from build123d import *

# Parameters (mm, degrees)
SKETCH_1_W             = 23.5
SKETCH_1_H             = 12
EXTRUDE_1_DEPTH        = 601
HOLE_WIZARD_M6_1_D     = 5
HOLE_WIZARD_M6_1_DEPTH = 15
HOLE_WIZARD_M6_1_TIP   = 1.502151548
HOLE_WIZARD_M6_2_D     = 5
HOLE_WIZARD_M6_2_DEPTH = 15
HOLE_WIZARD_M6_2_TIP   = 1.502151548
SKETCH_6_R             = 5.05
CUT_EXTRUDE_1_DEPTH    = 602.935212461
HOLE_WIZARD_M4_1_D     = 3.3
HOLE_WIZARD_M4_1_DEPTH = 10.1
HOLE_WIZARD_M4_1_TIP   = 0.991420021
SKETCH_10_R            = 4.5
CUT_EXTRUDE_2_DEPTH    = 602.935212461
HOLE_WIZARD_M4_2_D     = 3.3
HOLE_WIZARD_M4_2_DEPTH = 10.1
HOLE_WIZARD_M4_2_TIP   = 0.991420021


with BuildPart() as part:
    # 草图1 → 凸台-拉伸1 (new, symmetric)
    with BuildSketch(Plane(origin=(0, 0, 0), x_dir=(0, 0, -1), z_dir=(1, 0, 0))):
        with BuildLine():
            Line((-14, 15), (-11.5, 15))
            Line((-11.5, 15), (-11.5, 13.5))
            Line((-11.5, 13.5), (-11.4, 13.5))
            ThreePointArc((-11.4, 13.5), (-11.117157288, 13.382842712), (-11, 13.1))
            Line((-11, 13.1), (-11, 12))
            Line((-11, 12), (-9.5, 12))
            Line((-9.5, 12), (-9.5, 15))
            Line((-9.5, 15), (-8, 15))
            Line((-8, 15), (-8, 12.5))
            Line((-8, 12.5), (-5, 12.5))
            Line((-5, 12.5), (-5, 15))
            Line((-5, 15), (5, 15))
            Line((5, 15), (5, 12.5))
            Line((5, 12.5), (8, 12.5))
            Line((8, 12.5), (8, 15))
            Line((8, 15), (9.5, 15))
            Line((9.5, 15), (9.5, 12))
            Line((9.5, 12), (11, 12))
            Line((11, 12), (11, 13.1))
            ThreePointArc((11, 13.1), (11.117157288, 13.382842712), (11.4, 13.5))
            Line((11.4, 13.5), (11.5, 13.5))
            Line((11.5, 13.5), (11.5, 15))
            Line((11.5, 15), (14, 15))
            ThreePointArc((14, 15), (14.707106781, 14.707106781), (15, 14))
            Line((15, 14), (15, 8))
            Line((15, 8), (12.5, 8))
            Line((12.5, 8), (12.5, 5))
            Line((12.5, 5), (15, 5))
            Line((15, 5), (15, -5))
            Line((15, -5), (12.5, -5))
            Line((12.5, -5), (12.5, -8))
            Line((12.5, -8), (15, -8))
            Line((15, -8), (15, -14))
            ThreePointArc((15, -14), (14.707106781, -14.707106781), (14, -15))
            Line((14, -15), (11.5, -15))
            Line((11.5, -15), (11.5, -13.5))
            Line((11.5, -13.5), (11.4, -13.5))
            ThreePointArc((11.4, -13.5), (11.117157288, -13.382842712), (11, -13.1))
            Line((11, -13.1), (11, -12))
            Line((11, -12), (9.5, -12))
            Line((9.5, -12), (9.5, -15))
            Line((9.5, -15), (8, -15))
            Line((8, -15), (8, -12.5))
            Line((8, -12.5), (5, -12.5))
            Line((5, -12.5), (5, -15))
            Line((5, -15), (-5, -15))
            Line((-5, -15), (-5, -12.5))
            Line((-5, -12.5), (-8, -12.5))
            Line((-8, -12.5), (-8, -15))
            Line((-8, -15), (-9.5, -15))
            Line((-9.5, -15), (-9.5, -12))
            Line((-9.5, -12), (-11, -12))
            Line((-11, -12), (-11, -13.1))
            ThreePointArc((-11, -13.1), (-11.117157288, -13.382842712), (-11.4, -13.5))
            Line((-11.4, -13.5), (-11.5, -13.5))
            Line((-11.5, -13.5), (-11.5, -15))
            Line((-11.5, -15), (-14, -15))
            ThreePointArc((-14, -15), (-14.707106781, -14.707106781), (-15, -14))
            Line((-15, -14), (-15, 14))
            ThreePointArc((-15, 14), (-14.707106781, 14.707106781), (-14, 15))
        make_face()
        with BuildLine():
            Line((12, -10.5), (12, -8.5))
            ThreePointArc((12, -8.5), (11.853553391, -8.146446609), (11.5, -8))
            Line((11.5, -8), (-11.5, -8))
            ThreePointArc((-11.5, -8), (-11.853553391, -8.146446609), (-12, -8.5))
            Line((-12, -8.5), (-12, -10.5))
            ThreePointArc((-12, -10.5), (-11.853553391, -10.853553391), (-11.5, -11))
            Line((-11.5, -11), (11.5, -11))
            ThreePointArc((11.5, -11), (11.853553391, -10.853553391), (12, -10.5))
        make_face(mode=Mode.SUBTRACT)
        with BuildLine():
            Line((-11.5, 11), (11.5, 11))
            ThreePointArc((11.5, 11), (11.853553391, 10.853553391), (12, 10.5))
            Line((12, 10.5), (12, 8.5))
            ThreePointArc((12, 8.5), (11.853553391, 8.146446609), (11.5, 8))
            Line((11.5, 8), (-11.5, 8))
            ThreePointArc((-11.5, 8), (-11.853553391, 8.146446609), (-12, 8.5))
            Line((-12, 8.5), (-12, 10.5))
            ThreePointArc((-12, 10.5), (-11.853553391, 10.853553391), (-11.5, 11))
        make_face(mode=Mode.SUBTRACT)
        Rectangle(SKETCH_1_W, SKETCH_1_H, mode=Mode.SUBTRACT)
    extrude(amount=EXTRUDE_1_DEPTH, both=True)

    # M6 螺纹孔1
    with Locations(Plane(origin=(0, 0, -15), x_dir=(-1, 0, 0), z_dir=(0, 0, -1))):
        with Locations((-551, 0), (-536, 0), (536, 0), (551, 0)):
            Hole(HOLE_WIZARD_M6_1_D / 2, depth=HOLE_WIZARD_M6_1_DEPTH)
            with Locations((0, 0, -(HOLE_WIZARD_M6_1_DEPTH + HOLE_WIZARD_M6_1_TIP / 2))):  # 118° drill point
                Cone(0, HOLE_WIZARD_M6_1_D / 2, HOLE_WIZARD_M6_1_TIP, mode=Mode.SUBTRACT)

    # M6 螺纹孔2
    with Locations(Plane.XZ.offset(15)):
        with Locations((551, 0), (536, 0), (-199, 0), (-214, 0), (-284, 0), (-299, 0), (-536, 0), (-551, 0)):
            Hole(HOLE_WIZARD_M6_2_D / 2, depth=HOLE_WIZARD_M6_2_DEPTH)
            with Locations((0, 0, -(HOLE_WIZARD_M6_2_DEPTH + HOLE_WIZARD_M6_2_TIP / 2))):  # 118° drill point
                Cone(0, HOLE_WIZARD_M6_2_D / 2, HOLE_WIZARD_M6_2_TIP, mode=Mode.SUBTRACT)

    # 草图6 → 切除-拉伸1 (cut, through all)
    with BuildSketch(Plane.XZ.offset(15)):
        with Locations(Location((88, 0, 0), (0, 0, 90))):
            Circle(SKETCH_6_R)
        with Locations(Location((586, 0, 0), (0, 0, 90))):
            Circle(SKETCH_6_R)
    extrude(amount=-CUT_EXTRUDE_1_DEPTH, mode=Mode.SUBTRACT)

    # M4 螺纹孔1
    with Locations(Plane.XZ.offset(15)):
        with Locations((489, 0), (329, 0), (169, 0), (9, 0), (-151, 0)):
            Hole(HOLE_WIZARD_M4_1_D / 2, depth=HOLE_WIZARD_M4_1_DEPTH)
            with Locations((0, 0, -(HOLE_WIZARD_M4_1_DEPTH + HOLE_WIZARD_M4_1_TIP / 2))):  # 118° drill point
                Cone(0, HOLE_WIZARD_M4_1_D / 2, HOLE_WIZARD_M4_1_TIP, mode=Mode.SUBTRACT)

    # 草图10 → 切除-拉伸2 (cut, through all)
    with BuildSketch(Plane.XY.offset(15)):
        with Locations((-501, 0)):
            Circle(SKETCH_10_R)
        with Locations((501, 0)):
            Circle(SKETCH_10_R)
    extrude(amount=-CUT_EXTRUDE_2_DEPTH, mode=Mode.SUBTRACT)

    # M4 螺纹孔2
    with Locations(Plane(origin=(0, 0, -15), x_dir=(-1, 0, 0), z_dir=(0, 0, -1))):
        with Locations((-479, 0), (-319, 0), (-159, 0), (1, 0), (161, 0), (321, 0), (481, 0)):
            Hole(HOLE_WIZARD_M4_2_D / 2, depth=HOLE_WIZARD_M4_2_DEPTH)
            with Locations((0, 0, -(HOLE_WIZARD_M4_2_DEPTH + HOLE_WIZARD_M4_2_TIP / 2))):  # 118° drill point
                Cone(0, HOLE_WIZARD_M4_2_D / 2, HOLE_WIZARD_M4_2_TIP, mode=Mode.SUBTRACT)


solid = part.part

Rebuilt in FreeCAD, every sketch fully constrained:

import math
import FreeCAD as App
import Part
import Sketcher

V = App.Vector

doc = App.newDocument("Part")
body = doc.addObject("PartDesign::Body", "Body")

sketch1 = body.newObject("Sketcher::SketchObject", "Sketch")
sketch1.AttachmentSupport = (doc.getObject("YZ_Plane"), [""])
sketch1.MapMode = "FlatFace"
sketch1.addGeometry(Part.LineSegment(V(15, 11.5, 0), V(15, 14, 0)), False)
sketch1.addGeometry(Part.ArcOfCircle(Part.Circle(V(14, 14, 0), V(0, 0, 1), 1), math.radians(0), math.radians(90)), False)
sketch1.addGeometry(Part.LineSegment(V(14, 15, 0), V(-14, 15, 0)), False)
sketch1.addGeometry(Part.ArcOfCircle(Part.Circle(V(-14, 14, 0), V(0, 0, 1), 1), math.radians(90), math.radians(180)), False)
sketch1.addGeometry(Part.LineSegment(V(-15, 14, 0), V(-15, 11.5, 0)), False)
sketch1.addGeometry(Part.LineSegment(V(-15, 11.5, 0), V(-13.5, 11.5, 0)), False)
sketch1.addGeometry(Part.LineSegment(V(-13.5, 11.5, 0), V(-13.5, 11.4, 0)), False)
sketch1.addGeometry(Part.ArcOfCircle(Part.Circle(V(-13.1, 11.4, 0), V(0, 0, 1), 0.4), math.radians(-180), math.radians(-90)), False)
sketch1.addGeometry(Part.LineSegment(V(-13.1, 11, 0), V(-12, 11, 0)), False)
sketch1.addGeometry(Part.LineSegment(V(-12, 11, 0), V(-12, 9.5, 0)), False)
sketch1.addGeometry(Part.LineSegment(V(-12, 9.5, 0), V(-15, 9.5, 0)), False)
sketch1.addGeometry(Part.LineSegment(V(-15, 9.5, 0), V(-15, 8, 0)), False)
sketch1.addGeometry(Part.LineSegment(V(-15, 8, 0), V(-12.5, 8, 0)), False)
sketch1.addGeometry(Part.LineSegment(V(-12.5, 8, 0), V(-12.5, 5, 0)), False)
sketch1.addGeometry(Part.LineSegment(V(-12.5, 5, 0), V(-15, 5, 0)), False)
sketch1.addGeometry(Part.LineSegment(V(-15, 5, 0), V(-15, -5, 0)), False)
sketch1.addGeometry(Part.LineSegment(V(-15, -5, 0), V(-12.5, -5, 0)), False)
sketch1.addGeometry(Part.LineSegment(V(-12.5, -5, 0), V(-12.5, -8, 0)), False)
sketch1.addGeometry(Part.LineSegment(V(-12.5, -8, 0), V(-15, -8, 0)), False)
sketch1.addGeometry(Part.LineSegment(V(-15, -8, 0), V(-15, -9.5, 0)), False)
sketch1.addGeometry(Part.LineSegment(V(-15, -9.5, 0), V(-12, -9.5, 0)), False)
sketch1.addGeometry(Part.LineSegment(V(-12, -9.5, 0), V(-12, -11, 0)), False)
sketch1.addGeometry(Part.LineSegment(V(-12, -11, 0), V(-13.1, -11, 0)), False)
sketch1.addGeometry(Part.ArcOfCircle(Part.Circle(V(-13.1, -11.4, 0), V(0, 0, 1), 0.4), math.radians(90), math.radians(180)), False)
sketch1.addGeometry(Part.LineSegment(V(-13.5, -11.4, 0), V(-13.5, -11.5, 0)), False)
sketch1.addGeometry(Part.LineSegment(V(-13.5, -11.5, 0), V(-15, -11.5, 0)), False)
sketch1.addGeometry(Part.LineSegment(V(-15, -11.5, 0), V(-15, -14, 0)), False)
sketch1.addGeometry(Part.ArcOfCircle(Part.Circle(V(-14, -14, 0), V(0, 0, 1), 1), math.radians(-180), math.radians(-90)), False)
sketch1.addGeometry(Part.LineSegment(V(-14, -15, 0), V(-8, -15, 0)), False)
sketch1.addGeometry(Part.LineSegment(V(-8, -15, 0), V(-8, -12.5, 0)), False)
sketch1.addGeometry(Part.LineSegment(V(-8, -12.5, 0), V(-5, -12.5, 0)), False)
sketch1.addGeometry(Part.LineSegment(V(-5, -12.5, 0), V(-5, -15, 0)), False)
sketch1.addGeometry(Part.LineSegment(V(-5, -15, 0), V(5, -15, 0)), False)
sketch1.addGeometry(Part.LineSegment(V(5, -15, 0), V(5, -12.5, 0)), False)
sketch1.addGeometry(Part.LineSegment(V(5, -12.5, 0), V(8, -12.5, 0)), False)
sketch1.addGeometry(Part.LineSegment(V(8, -12.5, 0), V(8, -15, 0)), False)
sketch1.addGeometry(Part.LineSegment(V(8, -15, 0), V(14, -15, 0)), False)
sketch1.addGeometry(Part.ArcOfCircle(Part.Circle(V(14, -14, 0), V(0, 0, 1), 1), math.radians(-90), math.radians(0)), False)
sketch1.addGeometry(Part.LineSegment(V(15, -14, 0), V(15, -11.5, 0)), False)
sketch1.addGeometry(Part.LineSegment(V(15, -11.5, 0), V(13.5, -11.5, 0)), False)
sketch1.addGeometry(Part.LineSegment(V(13.5, -11.5, 0), V(13.5, -11.4, 0)), False)
sketch1.addGeometry(Part.ArcOfCircle(Part.Circle(V(13.1, -11.4, 0), V(0, 0, 1), 0.4), math.radians(0), math.radians(90)), False)
sketch1.addGeometry(Part.LineSegment(V(13.1, -11, 0), V(12, -11, 0)), False)
sketch1.addGeometry(Part.LineSegment(V(12, -11, 0), V(12, -9.5, 0)), False)
sketch1.addGeometry(Part.LineSegment(V(12, -9.5, 0), V(15, -9.5, 0)), False)
sketch1.addGeometry(Part.LineSegment(V(15, -9.5, 0), V(15, -8, 0)), False)
sketch1.addGeometry(Part.LineSegment(V(15, -8, 0), V(12.5, -8, 0)), False)
sketch1.addGeometry(Part.LineSegment(V(12.5, -8, 0), V(12.5, -5, 0)), False)
sketch1.addGeometry(Part.LineSegment(V(12.5, -5, 0), V(15, -5, 0)), False)
sketch1.addGeometry(Part.LineSegment(V(15, -5, 0), V(15, 5, 0)), False)
sketch1.addGeometry(Part.LineSegment(V(15, 5, 0), V(12.5, 5, 0)), False)
sketch1.addGeometry(Part.LineSegment(V(12.5, 5, 0), V(12.5, 8, 0)), False)
sketch1.addGeometry(Part.LineSegment(V(12.5, 8, 0), V(15, 8, 0)), False)
sketch1.addGeometry(Part.LineSegment(V(15, 8, 0), V(15, 9.5, 0)), False)
sketch1.addGeometry(Part.LineSegment(V(15, 9.5, 0), V(12, 9.5, 0)), False)
sketch1.addGeometry(Part.LineSegment(V(12, 9.5, 0), V(12, 11, 0)), False)
sketch1.addGeometry(Part.LineSegment(V(12, 11, 0), V(13.1, 11, 0)), False)
sketch1.addGeometry(Part.ArcOfCircle(Part.Circle(V(13.1, 11.4, 0), V(0, 0, 1), 0.4), math.radians(-90), math.radians(0)), False)
sketch1.addGeometry(Part.LineSegment(V(13.5, 11.4, 0), V(13.5, 11.5, 0)), False)
sketch1.addGeometry(Part.LineSegment(V(13.5, 11.5, 0), V(15, 11.5, 0)), False)
sketch1.addGeometry(Part.ArcOfCircle(Part.Circle(V(-10.5, -11.5, 0), V(0, 0, 1), 0.5), math.radians(180), math.radians(270)), False)
sketch1.addGeometry(Part.LineSegment(V(-11, -11.5, 0), V(-11, 11.5, 0)), False)
sketch1.addGeometry(Part.ArcOfCircle(Part.Circle(V(-10.5, 11.5, 0), V(0, 0, 1), 0.5), math.radians(90), math.radians(180)), False)
sketch1.addGeometry(Part.LineSegment(V(-10.5, 12, 0), V(-8.5, 12, 0)), False)
sketch1.addGeometry(Part.ArcOfCircle(Part.Circle(V(-8.5, 11.5, 0), V(0, 0, 1), 0.5), math.radians(0), math.radians(90)), False)
sketch1.addGeometry(Part.LineSegment(V(-8, 11.5, 0), V(-8, -11.5, 0)), False)
sketch1.addGeometry(Part.ArcOfCircle(Part.Circle(V(-8.5, -11.5, 0), V(0, 0, 1), 0.5), math.radians(-90), math.radians(0)), False)
sketch1.addGeometry(Part.LineSegment(V(-8.5, -12, 0), V(-10.5, -12, 0)), False)
sketch1.addGeometry(Part.LineSegment(V(-6, 11.75, 0), V(6, 11.75, 0)), False)
sketch1.addGeometry(Part.LineSegment(V(6, 11.75, 0), V(6, -11.75, 0)), False)
sketch1.addGeometry(Part.LineSegment(V(6, -11.75, 0), V(-6, -11.75, 0)), False)
sketch1.addGeometry(Part.LineSegment(V(-6, -11.75, 0), V(-6, 11.75, 0)), False)
sketch1.addGeometry(Part.LineSegment(V(11, 11.5, 0), V(11, -11.5, 0)), False)
sketch1.addGeometry(Part.ArcOfCircle(Part.Circle(V(10.5, -11.5, 0), V(0, 0, 1), 0.5), math.radians(-90), math.radians(0)), False)
sketch1.addGeometry(Part.LineSegment(V(10.5, -12, 0), V(8.5, -12, 0)), False)
sketch1.addGeometry(Part.ArcOfCircle(Part.Circle(V(8.5, -11.5, 0), V(0, 0, 1), 0.5), math.radians(180), math.radians(270)), False)
sketch1.addGeometry(Part.LineSegment(V(8, -11.5, 0), V(8, 11.5, 0)), False)
sketch1.addGeometry(Part.ArcOfCircle(Part.Circle(V(8.5, 11.5, 0), V(0, 0, 1), 0.5), math.radians(90), math.radians(180)), False)
sketch1.addGeometry(Part.LineSegment(V(8.5, 12, 0), V(10.5, 12, 0)), False)
sketch1.addGeometry(Part.ArcOfCircle(Part.Circle(V(10.5, 11.5, 0), V(0, 0, 1), 0.5), math.radians(0), math.radians(90)), False)
sketch1.addConstraint(Sketcher.Constraint("Tangent", 0, 2, 1, 1))
sketch1.addConstraint(Sketcher.Constraint("Tangent", 1, 2, 2, 1))
sketch1.addConstraint(Sketcher.Constraint("Tangent", 2, 2, 3, 1))
sketch1.addConstraint(Sketcher.Constraint("Tangent", 3, 2, 4, 1))
sketch1.addConstraint(Sketcher.Constraint("Coincident", 4, 2, 5, 1))
sketch1.addConstraint(Sketcher.Constraint("Coincident", 5, 2, 6, 1))
sketch1.addConstraint(Sketcher.Constraint("Tangent", 6, 2, 7, 1))
sketch1.addConstraint(Sketcher.Constraint("Tangent", 7, 2, 8, 1))
sketch1.addConstraint(Sketcher.Constraint("Coincident", 8, 2, 9, 1))
sketch1.addConstraint(Sketcher.Constraint("Coincident", 9, 2, 10, 1))
sketch1.addConstraint(Sketcher.Constraint("Coincident", 10, 2, 11, 1))
sketch1.addConstraint(Sketcher.Constraint("Coincident", 11, 2, 12, 1))
sketch1.addConstraint(Sketcher.Constraint("Coincident", 12, 2, 13, 1))
sketch1.addConstraint(Sketcher.Constraint("Coincident", 13, 2, 14, 1))
sketch1.addConstraint(Sketcher.Constraint("Coincident", 14, 2, 15, 1))
sketch1.addConstraint(Sketcher.Constraint("Coincident", 15, 2, 16, 1))
sketch1.addConstraint(Sketcher.Constraint("Coincident", 16, 2, 17, 1))
sketch1.addConstraint(Sketcher.Constraint("Coincident", 17, 2, 18, 1))
sketch1.addConstraint(Sketcher.Constraint("Coincident", 18, 2, 19, 1))
sketch1.addConstraint(Sketcher.Constraint("Coincident", 19, 2, 20, 1))
sketch1.addConstraint(Sketcher.Constraint("Coincident", 20, 2, 21, 1))
sketch1.addConstraint(Sketcher.Constraint("Coincident", 21, 2, 22, 1))
sketch1.addConstraint(Sketcher.Constraint("Tangent", 22, 2, 23, 1))
sketch1.addConstraint(Sketcher.Constraint("Tangent", 23, 2, 24, 1))
sketch1.addConstraint(Sketcher.Constraint("Coincident", 24, 2, 25, 1))
sketch1.addConstraint(Sketcher.Constraint("Coincident", 25, 2, 26, 1))
sketch1.addConstraint(Sketcher.Constraint("Tangent", 26, 2, 27, 1))
sketch1.addConstraint(Sketcher.Constraint("Tangent", 27, 2, 28, 1))
sketch1.addConstraint(Sketcher.Constraint("Coincident", 28, 2, 29, 1))
sketch1.addConstraint(Sketcher.Constraint("Coincident", 29, 2, 30, 1))
sketch1.addConstraint(Sketcher.Constraint("Coincident", 30, 2, 31, 1))
sketch1.addConstraint(Sketcher.Constraint("Coincident", 31, 2, 32, 1))
sketch1.addConstraint(Sketcher.Constraint("Coincident", 32, 2, 33, 1))
sketch1.addConstraint(Sketcher.Constraint("Coincident", 33, 2, 34, 1))
sketch1.addConstraint(Sketcher.Constraint("Coincident", 34, 2, 35, 1))
sketch1.addConstraint(Sketcher.Constraint("Coincident", 35, 2, 36, 1))
sketch1.addConstraint(Sketcher.Constraint("Tangent", 36, 2, 37, 1))
sketch1.addConstraint(Sketcher.Constraint("Tangent", 37, 2, 38, 1))
sketch1.addConstraint(Sketcher.Constraint("Coincident", 38, 2, 39, 1))
sketch1.addConstraint(Sketcher.Constraint("Coincident", 39, 2, 40, 1))
sketch1.addConstraint(Sketcher.Constraint("Tangent", 40, 2, 41, 1))
sketch1.addConstraint(Sketcher.Constraint("Tangent", 41, 2, 42, 1))
sketch1.addConstraint(Sketcher.Constraint("Coincident", 42, 2, 43, 1))
sketch1.addConstraint(Sketcher.Constraint("Coincident", 43, 2, 44, 1))
sketch1.addConstraint(Sketcher.Constraint("Coincident", 44, 2, 45, 1))
sketch1.addConstraint(Sketcher.Constraint("Coincident", 45, 2, 46, 1))
sketch1.addConstraint(Sketcher.Constraint("Coincident", 46, 2, 47, 1))
sketch1.addConstraint(Sketcher.Constraint("Coincident", 47, 2, 48, 1))
sketch1.addConstraint(Sketcher.Constraint("Coincident", 48, 2, 49, 1))
sketch1.addConstraint(Sketcher.Constraint("Coincident", 49, 2, 50, 1))
sketch1.addConstraint(Sketcher.Constraint("Coincident", 50, 2, 51, 1))
sketch1.addConstraint(Sketcher.Constraint("Coincident", 51, 2, 52, 1))
sketch1.addConstraint(Sketcher.Constraint("Coincident", 52, 2, 53, 1))
sketch1.addConstraint(Sketcher.Constraint("Coincident", 53, 2, 54, 1))
sketch1.addConstraint(Sketcher.Constraint("Coincident", 54, 2, 55, 1))
sketch1.addConstraint(Sketcher.Constraint("Coincident", 55, 2, 56, 1))
sketch1.addConstraint(Sketcher.Constraint("Tangent", 56, 2, 57, 1))
sketch1.addConstraint(Sketcher.Constraint("Tangent", 57, 2, 58, 1))
sketch1.addConstraint(Sketcher.Constraint("Coincident", 58, 2, 59, 1))
sketch1.addConstraint(Sketcher.Constraint("Coincident", 59, 2, 0, 1))
sketch1.addConstraint(Sketcher.Constraint("Tangent", 60, 1, 61, 1))
sketch1.addConstraint(Sketcher.Constraint("Tangent", 61, 2, 62, 2))
sketch1.addConstraint(Sketcher.Constraint("Tangent", 62, 1, 63, 1))
sketch1.addConstraint(Sketcher.Constraint("Tangent", 63, 2, 64, 2))
sketch1.addConstraint(Sketcher.Constraint("Tangent", 64, 1, 65, 1))
sketch1.addConstraint(Sketcher.Constraint("Tangent", 65, 2, 66, 2))
sketch1.addConstraint(Sketcher.Constraint("Tangent", 66, 1, 67, 1))
sketch1.addConstraint(Sketcher.Constraint("Tangent", 67, 2, 60, 2))
sketch1.addConstraint(Sketcher.Constraint("Coincident", 68, 2, 69, 1))
sketch1.addConstraint(Sketcher.Constraint("Coincident", 69, 2, 70, 1))
sketch1.addConstraint(Sketcher.Constraint("Coincident", 70, 2, 71, 1))
sketch1.addConstraint(Sketcher.Constraint("Coincident", 71, 2, 68, 1))
sketch1.addConstraint(Sketcher.Constraint("Tangent", 72, 2, 73, 2))
sketch1.addConstraint(Sketcher.Constraint("Tangent", 73, 1, 74, 1))
sketch1.addConstraint(Sketcher.Constraint("Tangent", 74, 2, 75, 2))
sketch1.addConstraint(Sketcher.Constraint("Tangent", 75, 1, 76, 1))
sketch1.addConstraint(Sketcher.Constraint("Tangent", 76, 2, 77, 2))
sketch1.addConstraint(Sketcher.Constraint("Tangent", 77, 1, 78, 1))
sketch1.addConstraint(Sketcher.Constraint("Tangent", 78, 2, 79, 2))
sketch1.addConstraint(Sketcher.Constraint("Tangent", 79, 1, 72, 1))
sketch1.addConstraint(Sketcher.Constraint("Vertical", 0))
sketch1.addConstraint(Sketcher.Constraint("Horizontal", 2))
sketch1.addConstraint(Sketcher.Constraint("Vertical", 4))
sketch1.addConstraint(Sketcher.Constraint("Horizontal", 5))
sketch1.addConstraint(Sketcher.Constraint("Vertical", 6))
sketch1.addConstraint(Sketcher.Constraint("Horizontal", 8))
sketch1.addConstraint(Sketcher.Constraint("Vertical", 9))
sketch1.addConstraint(Sketcher.Constraint("Horizontal", 10))
sketch1.addConstraint(Sketcher.Constraint("Vertical", 11))
sketch1.addConstraint(Sketcher.Constraint("Horizontal", 12))
sketch1.addConstraint(Sketcher.Constraint("Vertical", 13))
sketch1.addConstraint(Sketcher.Constraint("Horizontal", 14))
sketch1.addConstraint(Sketcher.Constraint("Vertical", 15))
sketch1.addConstraint(Sketcher.Constraint("Horizontal", 16))
sketch1.addConstraint(Sketcher.Constraint("Vertical", 17))
sketch1.addConstraint(Sketcher.Constraint("Horizontal", 18))
sketch1.addConstraint(Sketcher.Constraint("Vertical", 19))
sketch1.addConstraint(Sketcher.Constraint("Horizontal", 20))
sketch1.addConstraint(Sketcher.Constraint("Vertical", 21))
sketch1.addConstraint(Sketcher.Constraint("Horizontal", 22))
sketch1.addConstraint(Sketcher.Constraint("Vertical", 24))
sketch1.addConstraint(Sketcher.Constraint("Horizontal", 25))
sketch1.addConstraint(Sketcher.Constraint("Vertical", 26))
sketch1.addConstraint(Sketcher.Constraint("Horizontal", 28))
sketch1.addConstraint(Sketcher.Constraint("Vertical", 29))
sketch1.addConstraint(Sketcher.Constraint("Horizontal", 30))
sketch1.addConstraint(Sketcher.Constraint("Vertical", 31))
sketch1.addConstraint(Sketcher.Constraint("Horizontal", 32))
sketch1.addConstraint(Sketcher.Constraint("Vertical", 33))
sketch1.addConstraint(Sketcher.Constraint("Horizontal", 34))
sketch1.addConstraint(Sketcher.Constraint("Vertical", 35))
sketch1.addConstraint(Sketcher.Constraint("Horizontal", 36))
sketch1.addConstraint(Sketcher.Constraint("Vertical", 38))
sketch1.addConstraint(Sketcher.Constraint("Horizontal", 39))
sketch1.addConstraint(Sketcher.Constraint("Vertical", 40))
sketch1.addConstraint(Sketcher.Constraint("Horizontal", 42))
sketch1.addConstraint(Sketcher.Constraint("Vertical", 43))
sketch1.addConstraint(Sketcher.Constraint("Horizontal", 44))
sketch1.addConstraint(Sketcher.Constraint("Vertical", 45))
sketch1.addConstraint(Sketcher.Constraint("Horizontal", 46))
sketch1.addConstraint(Sketcher.Constraint("Vertical", 47))
sketch1.addConstraint(Sketcher.Constraint("Horizontal", 48))
sketch1.addConstraint(Sketcher.Constraint("Vertical", 49))
sketch1.addConstraint(Sketcher.Constraint("Horizontal", 50))
sketch1.addConstraint(Sketcher.Constraint("Vertical", 51))
sketch1.addConstraint(Sketcher.Constraint("Horizontal", 52))
sketch1.addConstraint(Sketcher.Constraint("Vertical", 53))
sketch1.addConstraint(Sketcher.Constraint("Horizontal", 54))
sketch1.addConstraint(Sketcher.Constraint("Vertical", 55))
sketch1.addConstraint(Sketcher.Constraint("Horizontal", 56))
sketch1.addConstraint(Sketcher.Constraint("Vertical", 58))
sketch1.addConstraint(Sketcher.Constraint("Horizontal", 59))
sketch1.addConstraint(Sketcher.Constraint("Vertical", 61))
sketch1.addConstraint(Sketcher.Constraint("Horizontal", 63))
sketch1.addConstraint(Sketcher.Constraint("Vertical", 65))
sketch1.addConstraint(Sketcher.Constraint("Horizontal", 67))
sketch1.addConstraint(Sketcher.Constraint("Horizontal", 68))
sketch1.addConstraint(Sketcher.Constraint("Vertical", 69))
sketch1.addConstraint(Sketcher.Constraint("Horizontal", 70))
sketch1.addConstraint(Sketcher.Constraint("Vertical", 71))
sketch1.addConstraint(Sketcher.Constraint("Vertical", 72))
sketch1.addConstraint(Sketcher.Constraint("Horizontal", 74))
sketch1.addConstraint(Sketcher.Constraint("Vertical", 76))
sketch1.addConstraint(Sketcher.Constraint("Horizontal", 78))
sketch1.addConstraint(Sketcher.Constraint("Equal", 1, 3))
sketch1.addConstraint(Sketcher.Constraint("Equal", 7, 23))
sketch1.addConstraint(Sketcher.Constraint("Equal", 3, 27))
sketch1.addConstraint(Sketcher.Constraint("Equal", 27, 37))
sketch1.addConstraint(Sketcher.Constraint("Equal", 23, 41))
sketch1.addConstraint(Sketcher.Constraint("Equal", 41, 57))
sketch1.addConstraint(Sketcher.Constraint("Equal", 60, 62))
sketch1.addConstraint(Sketcher.Constraint("Equal", 62, 64))
sketch1.addConstraint(Sketcher.Constraint("Equal", 64, 66))
sketch1.addConstraint(Sketcher.Constraint("Equal", 66, 73))
sketch1.addConstraint(Sketcher.Constraint("Equal", 73, 75))
sketch1.addConstraint(Sketcher.Constraint("Equal", 75, 77))
sketch1.addConstraint(Sketcher.Constraint("Equal", 77, 79))
sketch1.addConstraint(Sketcher.Constraint("Symmetric", 1, 3, 27, 3, -1, 1))
sketch1.addConstraint(Sketcher.Constraint("Symmetric", 3, 3, 37, 3, -1, 1))
sketch1.addConstraint(Sketcher.Constraint("Symmetric", 7, 3, 41, 3, -1, 1))
sketch1.addConstraint(Sketcher.Constraint("Symmetric", 23, 3, 57, 3, -1, 1))
sketch1.addConstraint(Sketcher.Constraint("Symmetric", 62, 3, 73, 3, -1, 1))
sketch1.addConstraint(Sketcher.Constraint("Symmetric", 66, 3, 77, 3, -1, 1))
sketch1.addConstraint(Sketcher.Constraint("Symmetric", 9, 2, 43, 2, -1, 1))
sketch1.addConstraint(Sketcher.Constraint("Symmetric", 11, 2, 45, 2, -1, 1))
sketch1.addConstraint(Sketcher.Constraint("Symmetric", 13, 2, 47, 2, -1, 1))
sketch1.addConstraint(Sketcher.Constraint("Symmetric", 15, 2, 49, 2, -1, 1))
sketch1.addConstraint(Sketcher.Constraint("Symmetric", 17, 2, 51, 2, -1, 1))
sketch1.addConstraint(Sketcher.Constraint("Symmetric", 19, 2, 53, 2, -1, 1))
sketch1.addConstraint(Sketcher.Constraint("Symmetric", 68, 2, 70, 2, -1, 1))
sketch1.addConstraint(Sketcher.Constraint("Symmetric", 23, 3, 41, 3, -2))
sketch1.addConstraint(Sketcher.Constraint("Symmetric", 30, 2, 33, 2, -2))
sketch1.addConstraint(Sketcher.Constraint("Symmetric", 25, 2, 38, 2, -2))
sketch1.addConstraint(Sketcher.Constraint("Symmetric", 20, 2, 43, 2, -2))
sketch1.addConstraint(Sketcher.Constraint("Symmetric", 18, 2, 45, 2, -2))
sketch1.addConstraint(Sketcher.Constraint("Symmetric", 16, 2, 47, 2, -2))
sketch1.addConstraint(Sketcher.Constraint("Horizontal", 66, 3, 73, 3))
sketch1.addConstraint(Sketcher.Constraint("Horizontal", 79, 3, 4, 2))
sketch1.addConstraint(Sketcher.Constraint("Horizontal", 75, 3, 24, 2))
sketch1.addConstraint(Sketcher.Constraint("Horizontal", 28, 2, 31, 2))
sketch1.addConstraint(Sketcher.Constraint("Horizontal", 5, 2, 58, 2))
sketch1.addConstraint(Sketcher.Constraint("Vertical", 4, 2, 10, 2))
sketch1.addConstraint(Sketcher.Constraint("Vertical", 11, 2, 14, 2))
sketch1.addConstraint(Sketcher.Constraint("Vertical", 43, 2, 54, 2))
sketch1.addConstraint(Sketcher.Constraint("Vertical", 29, 2, 64, 1))
sketch1.addConstraint(Sketcher.Constraint("Vertical", 35, 2, 75, 1))
sketch1.addConstraint(Sketcher.Constraint("Equal", 20, 30))
sketch1.addConstraint(Sketcher.Constraint("Equal", 52, 0))
sketch1.addConstraint(Sketcher.Constraint("Equal", 59, 9))
sketch1.addConstraint(Sketcher.Constraint("Equal", 9, 11))
sketch1.addConstraint(Sketcher.Constraint("Equal", 54, 13))
sketch1.addConstraint(Sketcher.Constraint("Equal", 32, 15))
sketch1.addConstraint(Sketcher.Constraint("Equal", 26, 29))
sketch1.addConstraint(Sketcher.Constraint("Radius", 1, 1.0))
sketch1.addConstraint(Sketcher.Constraint("Radius", 7, 0.4))
sketch1.addConstraint(Sketcher.Constraint("Radius", 60, 0.5))
sketch1.addConstraint(Sketcher.Constraint("DistanceX", 2, 2, 2, 1, 28.0))
sketch1.addConstraint(Sketcher.Constraint("DistanceX", 10, 2, 10, 1, 3.0))
sketch1.addConstraint(Sketcher.Constraint("DistanceX", 28, 1, 28, 2, 6.0))
sketch1.addConstraint(Sketcher.Constraint("DistanceX", 63, 1, 63, 2, 2.0))
sketch1.addConstraint(Sketcher.Constraint("DistanceX", 68, 1, 68, 2, 12.0))
sketch1.addConstraint(Sketcher.Constraint("DistanceY", 61, 1, 61, 2, 23.0))
sketch1.addConstraint(Sketcher.Constraint("DistanceX", 5, 1, 5, 2, 1.5))
sketch1.addConstraint(Sketcher.Constraint("DistanceX", 12, 1, 12, 2, 2.5))
sketch1.addConstraint(Sketcher.Constraint("DistanceY", 69, 2, 69, 1, 23.5))
pad1 = body.newObject("PartDesign::Pad", "Pad")
pad1.Profile = sketch1
pad1.Length = 1202
pad1.Midplane = True

sketch2 = body.newObject("Sketcher::SketchObject", "Sketch001")
sketch2.AttachmentSupport = (doc.getObject("XY_Plane"), [""])
sketch2.MapMode = "FlatFace"
sketch2.AttachmentOffset = App.Placement(V(0, 0, -15), App.Rotation())
sketch2.addGeometry(Part.Circle(V(551, 0, 0), V(0, 0, 1), 2.5), False)
sketch2.addGeometry(Part.Circle(V(536, 0, 0), V(0, 0, 1), 2.5), False)
sketch2.addGeometry(Part.Circle(V(-536, 0, 0), V(0, 0, 1), 2.5), False)
sketch2.addGeometry(Part.Circle(V(-551, 0, 0), V(0, 0, 1), 2.5), False)
sketch2.addConstraint(Sketcher.Constraint("Equal", 0, 1))
sketch2.addConstraint(Sketcher.Constraint("Equal", 1, 2))
sketch2.addConstraint(Sketcher.Constraint("Equal", 2, 3))
sketch2.addConstraint(Sketcher.Constraint("Symmetric", 1, 3, 2, 3, -1, 1))
sketch2.addConstraint(Sketcher.Constraint("Symmetric", 0, 3, 3, 3, -1, 1))
sketch2.addConstraint(Sketcher.Constraint("PointOnObject", 0, 3, -1))
sketch2.addConstraint(Sketcher.Constraint("PointOnObject", 1, 3, -1))
sketch2.addConstraint(Sketcher.Constraint("Diameter", 0, 5.0))
sketch2.addConstraint(Sketcher.Constraint("DistanceX", -1, 1, 0, 3, 551.0))
sketch2.addConstraint(Sketcher.Constraint("DistanceX", -1, 1, 1, 3, 536.0))
doc.recompute()
hole = body.newObject("PartDesign::Hole", "Hole")
hole.Profile = sketch2
hole.ThreadType = "None"
hole.Diameter = 5
hole.DepthType = "Dimension"
hole.Depth = 15
hole.DrillPoint = "Angled"
hole.DrillPointAngle = 118
hole.Reversed = True

sketch3 = body.newObject("Sketcher::SketchObject", "Sketch002")
sketch3.AttachmentSupport = (doc.getObject("XZ_Plane"), [""])
sketch3.MapMode = "FlatFace"
sketch3.AttachmentOffset = App.Placement(V(0, 0, 15), App.Rotation())
sketch3.addGeometry(Part.Circle(V(551, 0, 0), V(0, 0, 1), 2.5), False)
sketch3.addGeometry(Part.Circle(V(536, 0, 0), V(0, 0, 1), 2.5), False)
sketch3.addGeometry(Part.Circle(V(-199, 0, 0), V(0, 0, 1), 2.5), False)
sketch3.addGeometry(Part.Circle(V(-214, 0, 0), V(0, 0, 1), 2.5), False)
sketch3.addGeometry(Part.Circle(V(-284, 0, 0), V(0, 0, 1), 2.5), False)
sketch3.addGeometry(Part.Circle(V(-299, 0, 0), V(0, 0, 1), 2.5), False)
sketch3.addGeometry(Part.Circle(V(-536, 0, 0), V(0, 0, 1), 2.5), False)
sketch3.addGeometry(Part.Circle(V(-551, 0, 0), V(0, 0, 1), 2.5), False)
sketch3.addConstraint(Sketcher.Constraint("Equal", 0, 1))
sketch3.addConstraint(Sketcher.Constraint("Equal", 1, 2))
sketch3.addConstraint(Sketcher.Constraint("Equal", 2, 3))
sketch3.addConstraint(Sketcher.Constraint("Equal", 3, 4))
sketch3.addConstraint(Sketcher.Constraint("Equal", 4, 5))
sketch3.addConstraint(Sketcher.Constraint("Equal", 5, 6))
sketch3.addConstraint(Sketcher.Constraint("Equal", 6, 7))
sketch3.addConstraint(Sketcher.Constraint("Symmetric", 1, 3, 6, 3, -1, 1))
sketch3.addConstraint(Sketcher.Constraint("Symmetric", 0, 3, 7, 3, -1, 1))
sketch3.addConstraint(Sketcher.Constraint("PointOnObject", 0, 3, -1))
sketch3.addConstraint(Sketcher.Constraint("PointOnObject", 1, 3, -1))
sketch3.addConstraint(Sketcher.Constraint("PointOnObject", 2, 3, -1))
sketch3.addConstraint(Sketcher.Constraint("PointOnObject", 3, 3, -1))
sketch3.addConstraint(Sketcher.Constraint("PointOnObject", 4, 3, -1))
sketch3.addConstraint(Sketcher.Constraint("PointOnObject", 5, 3, -1))
sketch3.addConstraint(Sketcher.Constraint("Diameter", 0, 5.0))
sketch3.addConstraint(Sketcher.Constraint("DistanceX", -1, 1, 0, 3, 551.0))
sketch3.addConstraint(Sketcher.Constraint("DistanceX", -1, 1, 1, 3, 536.0))
sketch3.addConstraint(Sketcher.Constraint("DistanceX", 2, 3, -1, 1, 199.0))
sketch3.addConstraint(Sketcher.Constraint("DistanceX", 3, 3, -1, 1, 214.0))
sketch3.addConstraint(Sketcher.Constraint("DistanceX", 4, 3, -1, 1, 284.0))
sketch3.addConstraint(Sketcher.Constraint("DistanceX", 5, 3, -1, 1, 299.0))
doc.recompute()
hole2 = body.newObject("PartDesign::Hole", "Hole001")
hole2.Profile = sketch3
hole2.ThreadType = "None"
hole2.Diameter = 5
hole2.DepthType = "Dimension"
hole2.Depth = 15
hole2.DrillPoint = "Angled"
hole2.DrillPointAngle = 118

sketch4 = body.newObject("Sketcher::SketchObject", "Sketch003")
sketch4.AttachmentSupport = (doc.getObject("XZ_Plane"), [""])
sketch4.MapMode = "FlatFace"
sketch4.AttachmentOffset = App.Placement(V(0, 0, 15), App.Rotation())
sketch4.addGeometry(Part.Circle(V(88, 0, 0), V(0, 0, 1), 5), False)
sketch4.addGeometry(Part.Circle(V(586, 0, 0), V(0, 0, 1), 5), False)
sketch4.addConstraint(Sketcher.Constraint("Equal", 0, 1))
sketch4.addConstraint(Sketcher.Constraint("PointOnObject", 0, 3, -1))
sketch4.addConstraint(Sketcher.Constraint("PointOnObject", 1, 3, -1))
sketch4.addConstraint(Sketcher.Constraint("Diameter", 0, 10.1))
sketch4.addConstraint(Sketcher.Constraint("DistanceX", -1, 1, 0, 3, 88.0))
sketch4.addConstraint(Sketcher.Constraint("DistanceX", -1, 1, 1, 3, 586.0))
pocket1 = body.newObject("PartDesign::Pocket", "Pocket")
pocket1.Profile = sketch4
pocket1.Type = "ThroughAll"

sketch5 = body.newObject("Sketcher::SketchObject", "Sketch004")
sketch5.AttachmentSupport = (doc.getObject("XZ_Plane"), [""])
sketch5.MapMode = "FlatFace"
sketch5.AttachmentOffset = App.Placement(V(0, 0, 15), App.Rotation())
sketch5.addGeometry(Part.Circle(V(489, 0, 0), V(0, 0, 1), 1.6), False)
sketch5.addGeometry(Part.Circle(V(329, 0, 0), V(0, 0, 1), 1.6), False)
sketch5.addGeometry(Part.Circle(V(169, 0, 0), V(0, 0, 1), 1.6), False)
sketch5.addGeometry(Part.Circle(V(9, 0, 0), V(0, 0, 1), 1.6), False)
sketch5.addGeometry(Part.Circle(V(-151, 0, 0), V(0, 0, 1), 1.6), False)
sketch5.addConstraint(Sketcher.Constraint("Equal", 0, 1))
sketch5.addConstraint(Sketcher.Constraint("Equal", 1, 2))
sketch5.addConstraint(Sketcher.Constraint("Equal", 2, 3))
sketch5.addConstraint(Sketcher.Constraint("Equal", 3, 4))
sketch5.addConstraint(Sketcher.Constraint("PointOnObject", 0, 3, -1))
sketch5.addConstraint(Sketcher.Constraint("PointOnObject", 1, 3, -1))
sketch5.addConstraint(Sketcher.Constraint("PointOnObject", 2, 3, -1))
sketch5.addConstraint(Sketcher.Constraint("PointOnObject", 3, 3, -1))
sketch5.addConstraint(Sketcher.Constraint("PointOnObject", 4, 3, -1))
sketch5.addConstraint(Sketcher.Constraint("Diameter", 0, 3.3))
sketch5.addConstraint(Sketcher.Constraint("DistanceX", -1, 1, 0, 3, 489.0))
sketch5.addConstraint(Sketcher.Constraint("DistanceX", -1, 1, 1, 3, 329.0))
sketch5.addConstraint(Sketcher.Constraint("DistanceX", -1, 1, 2, 3, 169.0))
sketch5.addConstraint(Sketcher.Constraint("DistanceX", -1, 1, 3, 3, 9.0))
sketch5.addConstraint(Sketcher.Constraint("DistanceX", 4, 3, -1, 1, 151.0))
doc.recompute()
hole3 = body.newObject("PartDesign::Hole", "Hole002")
hole3.Profile = sketch5
hole3.ThreadType = "None"
hole3.Diameter = 3.3
hole3.DepthType = "Dimension"
hole3.Depth = 10.1
hole3.DrillPoint = "Angled"
hole3.DrillPointAngle = 118

sketch6 = body.newObject("Sketcher::SketchObject", "Sketch005")
sketch6.AttachmentSupport = (doc.getObject("XY_Plane"), [""])
sketch6.MapMode = "FlatFace"
sketch6.AttachmentOffset = App.Placement(V(0, 0, 15), App.Rotation())
sketch6.addGeometry(Part.Circle(V(-501, 0, 0), V(0, 0, 1), 4.5), False)
sketch6.addGeometry(Part.Circle(V(501, 0, 0), V(0, 0, 1), 4.5), False)
sketch6.addConstraint(Sketcher.Constraint("Equal", 0, 1))
sketch6.addConstraint(Sketcher.Constraint("Symmetric", 0, 3, 1, 3, -1, 1))
sketch6.addConstraint(Sketcher.Constraint("PointOnObject", 0, 3, -1))
sketch6.addConstraint(Sketcher.Constraint("Diameter", 0, 9.0))
sketch6.addConstraint(Sketcher.Constraint("DistanceX", 0, 3, -1, 1, 501.0))
pocket2 = body.newObject("PartDesign::Pocket", "Pocket001")
pocket2.Profile = sketch6
pocket2.Type = "ThroughAll"

sketch7 = body.newObject("Sketcher::SketchObject", "Sketch006")
sketch7.AttachmentSupport = (doc.getObject("XY_Plane"), [""])
sketch7.MapMode = "FlatFace"
sketch7.AttachmentOffset = App.Placement(V(0, 0, -15), App.Rotation())
sketch7.addGeometry(Part.Circle(V(479, 0, 0), V(0, 0, 1), 1.6), False)
sketch7.addGeometry(Part.Circle(V(319, 0, 0), V(0, 0, 1), 1.6), False)
sketch7.addGeometry(Part.Circle(V(159, 0, 0), V(0, 0, 1), 1.6), False)
sketch7.addGeometry(Part.Circle(V(-1, 0, 0), V(0, 0, 1), 1.6), False)
sketch7.addGeometry(Part.Circle(V(-161, 0, 0), V(0, 0, 1), 1.6), False)
sketch7.addGeometry(Part.Circle(V(-321, 0, 0), V(0, 0, 1), 1.6), False)
sketch7.addGeometry(Part.Circle(V(-481, 0, 0), V(0, 0, 1), 1.6), False)
sketch7.addConstraint(Sketcher.Constraint("Equal", 0, 1))
sketch7.addConstraint(Sketcher.Constraint("Equal", 1, 2))
sketch7.addConstraint(Sketcher.Constraint("Equal", 2, 3))
sketch7.addConstraint(Sketcher.Constraint("Equal", 3, 4))
sketch7.addConstraint(Sketcher.Constraint("Equal", 4, 5))
sketch7.addConstraint(Sketcher.Constraint("Equal", 5, 6))
sketch7.addConstraint(Sketcher.Constraint("PointOnObject", 0, 3, -1))
sketch7.addConstraint(Sketcher.Constraint("PointOnObject", 1, 3, -1))
sketch7.addConstraint(Sketcher.Constraint("PointOnObject", 2, 3, -1))
sketch7.addConstraint(Sketcher.Constraint("PointOnObject", 3, 3, -1))
sketch7.addConstraint(Sketcher.Constraint("PointOnObject", 4, 3, -1))
sketch7.addConstraint(Sketcher.Constraint("PointOnObject", 5, 3, -1))
sketch7.addConstraint(Sketcher.Constraint("PointOnObject", 6, 3, -1))
sketch7.addConstraint(Sketcher.Constraint("Diameter", 0, 3.3))
sketch7.addConstraint(Sketcher.Constraint("DistanceX", -1, 1, 0, 3, 479.0))
sketch7.addConstraint(Sketcher.Constraint("DistanceX", -1, 1, 1, 3, 319.0))
sketch7.addConstraint(Sketcher.Constraint("DistanceX", -1, 1, 2, 3, 159.0))
sketch7.addConstraint(Sketcher.Constraint("DistanceX", 3, 3, -1, 1, 1.0))
sketch7.addConstraint(Sketcher.Constraint("DistanceX", 4, 3, -1, 1, 161.0))
sketch7.addConstraint(Sketcher.Constraint("DistanceX", 5, 3, -1, 1, 321.0))
sketch7.addConstraint(Sketcher.Constraint("DistanceX", 6, 3, -1, 1, 481.0))
doc.recompute()
hole4 = body.newObject("PartDesign::Hole", "Hole003")
hole4.Profile = sketch7
hole4.ThreadType = "None"
hole4.Diameter = 3.3
hole4.DepthType = "Dimension"
hole4.Depth = 10.1
hole4.DrillPoint = "Angled"
hole4.DrillPointAngle = 118
hole4.Reversed = True

doc.recompute()
